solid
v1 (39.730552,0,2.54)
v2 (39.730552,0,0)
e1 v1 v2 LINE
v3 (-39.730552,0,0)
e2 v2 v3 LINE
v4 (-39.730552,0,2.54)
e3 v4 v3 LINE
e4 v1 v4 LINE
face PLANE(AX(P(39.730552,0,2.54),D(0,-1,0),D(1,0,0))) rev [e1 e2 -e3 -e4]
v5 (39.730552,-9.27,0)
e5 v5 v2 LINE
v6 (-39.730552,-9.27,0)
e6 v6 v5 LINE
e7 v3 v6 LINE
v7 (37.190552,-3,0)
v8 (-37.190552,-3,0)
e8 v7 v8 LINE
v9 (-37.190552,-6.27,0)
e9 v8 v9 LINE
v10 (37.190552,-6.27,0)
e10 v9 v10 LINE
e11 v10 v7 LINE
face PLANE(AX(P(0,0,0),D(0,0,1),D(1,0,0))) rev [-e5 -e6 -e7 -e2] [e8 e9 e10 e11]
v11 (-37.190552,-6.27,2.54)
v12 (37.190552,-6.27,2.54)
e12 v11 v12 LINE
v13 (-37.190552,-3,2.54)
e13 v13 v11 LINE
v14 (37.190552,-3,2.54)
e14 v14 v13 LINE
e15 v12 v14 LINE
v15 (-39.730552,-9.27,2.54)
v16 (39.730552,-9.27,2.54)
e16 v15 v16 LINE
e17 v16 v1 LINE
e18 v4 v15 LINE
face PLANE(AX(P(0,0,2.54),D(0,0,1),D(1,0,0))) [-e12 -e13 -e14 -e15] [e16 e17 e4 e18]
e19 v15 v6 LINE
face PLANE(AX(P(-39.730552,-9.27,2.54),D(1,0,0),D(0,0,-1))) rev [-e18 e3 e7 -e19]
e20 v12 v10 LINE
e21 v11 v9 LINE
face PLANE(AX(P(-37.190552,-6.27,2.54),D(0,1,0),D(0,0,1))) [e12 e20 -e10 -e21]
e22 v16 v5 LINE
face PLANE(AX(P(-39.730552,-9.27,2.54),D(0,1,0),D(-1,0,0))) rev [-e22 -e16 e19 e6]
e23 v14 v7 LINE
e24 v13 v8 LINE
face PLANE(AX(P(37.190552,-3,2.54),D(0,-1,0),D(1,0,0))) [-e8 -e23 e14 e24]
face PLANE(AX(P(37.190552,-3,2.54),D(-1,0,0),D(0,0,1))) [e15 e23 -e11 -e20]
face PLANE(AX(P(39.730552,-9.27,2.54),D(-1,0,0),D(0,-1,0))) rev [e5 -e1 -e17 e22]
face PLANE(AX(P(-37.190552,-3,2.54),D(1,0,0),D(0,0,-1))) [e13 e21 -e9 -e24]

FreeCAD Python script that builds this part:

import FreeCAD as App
import Part
import Sketcher
from FreeCAD import Vector
Q = App.Units.Quantity


def add_polygon(sketch, points):
    """Adds a closed chain of lines whose ends are joined by coincident constraints."""
    first, n = sketch.GeometryCount, len(points)
    for a, b in zip(points, points[1:] + points[:1]):
        sketch.addGeometry(Part.LineSegment(App.Vector(*a, 0), App.Vector(*b, 0)), False)
    for i in range(n):
        sketch.addConstraint(Sketcher.Constraint("Coincident", first + i, 2, first + (i + 1) % n, 1))

doc = App.newDocument("Part")
params = doc.addObject("Spreadsheet::Sheet", "Params")
for row, (alias, value) in enumerate([
    ("pad1_length", "0.1 in"),
], start=1):
    params.set(f"A{row}", alias)
    params.set(f"B{row}", "=" + value)
    params.setAlias(f"B{row}", alias)

body = doc.addObject("PartDesign::Body", "Body")

# Sketch on XY plane
sketch1 = body.newObject("Sketcher::SketchObject", "Sketch")
sketch1.AttachmentSupport = (doc.getObject("XY_Plane"), [""])
sketch1.MapMode = "FlatFace"
add_polygon(sketch1, [(39.7, 0), (-39.7, 0), (-39.7, -9.3), (39.7, -9.3)])  # lines 0-3
add_polygon(sketch1, [(37.2, -6.3), (-37.2, -6.3), (-37.2, -3), (37.2, -3)])  # lines 4-7
sketch1.addConstraint([
    Sketcher.Constraint("Horizontal", 0),
    Sketcher.Constraint("Vertical", 1),
    Sketcher.Constraint("Horizontal", 2),
    Sketcher.Constraint("Vertical", 3),
    Sketcher.Constraint("Horizontal", 4),
    Sketcher.Constraint("Vertical", 5),
    Sketcher.Constraint("Horizontal", 6),
    Sketcher.Constraint("Vertical", 7),
    Sketcher.Constraint("Symmetric", 0, 2, 3, 2, -1, 1),
    Sketcher.Constraint("DistanceX", 1, 2, 4, 2, Q("0.1 in")),
    Sketcher.Constraint("DistanceX", 6, 2, 3, 2, Q("0.1 in")),
    Sketcher.Constraint("DistanceY", 1, 2, 1, 1, 9.27),
    Sketcher.Constraint("DistanceY", 5, 1, 5, 2, 3.27),
    Sketcher.Constraint("DistanceY", 4, 2, -1, 1, 6.27),
    Sketcher.Constraint("DistanceX", 0, 2, 0, 1, 79.461104),
])
pad1 = body.newObject("PartDesign::Pad", "Pad")
pad1.Profile = sketch1
pad1.setExpression("Length", "Params.pad1_length")

doc.recompute()
